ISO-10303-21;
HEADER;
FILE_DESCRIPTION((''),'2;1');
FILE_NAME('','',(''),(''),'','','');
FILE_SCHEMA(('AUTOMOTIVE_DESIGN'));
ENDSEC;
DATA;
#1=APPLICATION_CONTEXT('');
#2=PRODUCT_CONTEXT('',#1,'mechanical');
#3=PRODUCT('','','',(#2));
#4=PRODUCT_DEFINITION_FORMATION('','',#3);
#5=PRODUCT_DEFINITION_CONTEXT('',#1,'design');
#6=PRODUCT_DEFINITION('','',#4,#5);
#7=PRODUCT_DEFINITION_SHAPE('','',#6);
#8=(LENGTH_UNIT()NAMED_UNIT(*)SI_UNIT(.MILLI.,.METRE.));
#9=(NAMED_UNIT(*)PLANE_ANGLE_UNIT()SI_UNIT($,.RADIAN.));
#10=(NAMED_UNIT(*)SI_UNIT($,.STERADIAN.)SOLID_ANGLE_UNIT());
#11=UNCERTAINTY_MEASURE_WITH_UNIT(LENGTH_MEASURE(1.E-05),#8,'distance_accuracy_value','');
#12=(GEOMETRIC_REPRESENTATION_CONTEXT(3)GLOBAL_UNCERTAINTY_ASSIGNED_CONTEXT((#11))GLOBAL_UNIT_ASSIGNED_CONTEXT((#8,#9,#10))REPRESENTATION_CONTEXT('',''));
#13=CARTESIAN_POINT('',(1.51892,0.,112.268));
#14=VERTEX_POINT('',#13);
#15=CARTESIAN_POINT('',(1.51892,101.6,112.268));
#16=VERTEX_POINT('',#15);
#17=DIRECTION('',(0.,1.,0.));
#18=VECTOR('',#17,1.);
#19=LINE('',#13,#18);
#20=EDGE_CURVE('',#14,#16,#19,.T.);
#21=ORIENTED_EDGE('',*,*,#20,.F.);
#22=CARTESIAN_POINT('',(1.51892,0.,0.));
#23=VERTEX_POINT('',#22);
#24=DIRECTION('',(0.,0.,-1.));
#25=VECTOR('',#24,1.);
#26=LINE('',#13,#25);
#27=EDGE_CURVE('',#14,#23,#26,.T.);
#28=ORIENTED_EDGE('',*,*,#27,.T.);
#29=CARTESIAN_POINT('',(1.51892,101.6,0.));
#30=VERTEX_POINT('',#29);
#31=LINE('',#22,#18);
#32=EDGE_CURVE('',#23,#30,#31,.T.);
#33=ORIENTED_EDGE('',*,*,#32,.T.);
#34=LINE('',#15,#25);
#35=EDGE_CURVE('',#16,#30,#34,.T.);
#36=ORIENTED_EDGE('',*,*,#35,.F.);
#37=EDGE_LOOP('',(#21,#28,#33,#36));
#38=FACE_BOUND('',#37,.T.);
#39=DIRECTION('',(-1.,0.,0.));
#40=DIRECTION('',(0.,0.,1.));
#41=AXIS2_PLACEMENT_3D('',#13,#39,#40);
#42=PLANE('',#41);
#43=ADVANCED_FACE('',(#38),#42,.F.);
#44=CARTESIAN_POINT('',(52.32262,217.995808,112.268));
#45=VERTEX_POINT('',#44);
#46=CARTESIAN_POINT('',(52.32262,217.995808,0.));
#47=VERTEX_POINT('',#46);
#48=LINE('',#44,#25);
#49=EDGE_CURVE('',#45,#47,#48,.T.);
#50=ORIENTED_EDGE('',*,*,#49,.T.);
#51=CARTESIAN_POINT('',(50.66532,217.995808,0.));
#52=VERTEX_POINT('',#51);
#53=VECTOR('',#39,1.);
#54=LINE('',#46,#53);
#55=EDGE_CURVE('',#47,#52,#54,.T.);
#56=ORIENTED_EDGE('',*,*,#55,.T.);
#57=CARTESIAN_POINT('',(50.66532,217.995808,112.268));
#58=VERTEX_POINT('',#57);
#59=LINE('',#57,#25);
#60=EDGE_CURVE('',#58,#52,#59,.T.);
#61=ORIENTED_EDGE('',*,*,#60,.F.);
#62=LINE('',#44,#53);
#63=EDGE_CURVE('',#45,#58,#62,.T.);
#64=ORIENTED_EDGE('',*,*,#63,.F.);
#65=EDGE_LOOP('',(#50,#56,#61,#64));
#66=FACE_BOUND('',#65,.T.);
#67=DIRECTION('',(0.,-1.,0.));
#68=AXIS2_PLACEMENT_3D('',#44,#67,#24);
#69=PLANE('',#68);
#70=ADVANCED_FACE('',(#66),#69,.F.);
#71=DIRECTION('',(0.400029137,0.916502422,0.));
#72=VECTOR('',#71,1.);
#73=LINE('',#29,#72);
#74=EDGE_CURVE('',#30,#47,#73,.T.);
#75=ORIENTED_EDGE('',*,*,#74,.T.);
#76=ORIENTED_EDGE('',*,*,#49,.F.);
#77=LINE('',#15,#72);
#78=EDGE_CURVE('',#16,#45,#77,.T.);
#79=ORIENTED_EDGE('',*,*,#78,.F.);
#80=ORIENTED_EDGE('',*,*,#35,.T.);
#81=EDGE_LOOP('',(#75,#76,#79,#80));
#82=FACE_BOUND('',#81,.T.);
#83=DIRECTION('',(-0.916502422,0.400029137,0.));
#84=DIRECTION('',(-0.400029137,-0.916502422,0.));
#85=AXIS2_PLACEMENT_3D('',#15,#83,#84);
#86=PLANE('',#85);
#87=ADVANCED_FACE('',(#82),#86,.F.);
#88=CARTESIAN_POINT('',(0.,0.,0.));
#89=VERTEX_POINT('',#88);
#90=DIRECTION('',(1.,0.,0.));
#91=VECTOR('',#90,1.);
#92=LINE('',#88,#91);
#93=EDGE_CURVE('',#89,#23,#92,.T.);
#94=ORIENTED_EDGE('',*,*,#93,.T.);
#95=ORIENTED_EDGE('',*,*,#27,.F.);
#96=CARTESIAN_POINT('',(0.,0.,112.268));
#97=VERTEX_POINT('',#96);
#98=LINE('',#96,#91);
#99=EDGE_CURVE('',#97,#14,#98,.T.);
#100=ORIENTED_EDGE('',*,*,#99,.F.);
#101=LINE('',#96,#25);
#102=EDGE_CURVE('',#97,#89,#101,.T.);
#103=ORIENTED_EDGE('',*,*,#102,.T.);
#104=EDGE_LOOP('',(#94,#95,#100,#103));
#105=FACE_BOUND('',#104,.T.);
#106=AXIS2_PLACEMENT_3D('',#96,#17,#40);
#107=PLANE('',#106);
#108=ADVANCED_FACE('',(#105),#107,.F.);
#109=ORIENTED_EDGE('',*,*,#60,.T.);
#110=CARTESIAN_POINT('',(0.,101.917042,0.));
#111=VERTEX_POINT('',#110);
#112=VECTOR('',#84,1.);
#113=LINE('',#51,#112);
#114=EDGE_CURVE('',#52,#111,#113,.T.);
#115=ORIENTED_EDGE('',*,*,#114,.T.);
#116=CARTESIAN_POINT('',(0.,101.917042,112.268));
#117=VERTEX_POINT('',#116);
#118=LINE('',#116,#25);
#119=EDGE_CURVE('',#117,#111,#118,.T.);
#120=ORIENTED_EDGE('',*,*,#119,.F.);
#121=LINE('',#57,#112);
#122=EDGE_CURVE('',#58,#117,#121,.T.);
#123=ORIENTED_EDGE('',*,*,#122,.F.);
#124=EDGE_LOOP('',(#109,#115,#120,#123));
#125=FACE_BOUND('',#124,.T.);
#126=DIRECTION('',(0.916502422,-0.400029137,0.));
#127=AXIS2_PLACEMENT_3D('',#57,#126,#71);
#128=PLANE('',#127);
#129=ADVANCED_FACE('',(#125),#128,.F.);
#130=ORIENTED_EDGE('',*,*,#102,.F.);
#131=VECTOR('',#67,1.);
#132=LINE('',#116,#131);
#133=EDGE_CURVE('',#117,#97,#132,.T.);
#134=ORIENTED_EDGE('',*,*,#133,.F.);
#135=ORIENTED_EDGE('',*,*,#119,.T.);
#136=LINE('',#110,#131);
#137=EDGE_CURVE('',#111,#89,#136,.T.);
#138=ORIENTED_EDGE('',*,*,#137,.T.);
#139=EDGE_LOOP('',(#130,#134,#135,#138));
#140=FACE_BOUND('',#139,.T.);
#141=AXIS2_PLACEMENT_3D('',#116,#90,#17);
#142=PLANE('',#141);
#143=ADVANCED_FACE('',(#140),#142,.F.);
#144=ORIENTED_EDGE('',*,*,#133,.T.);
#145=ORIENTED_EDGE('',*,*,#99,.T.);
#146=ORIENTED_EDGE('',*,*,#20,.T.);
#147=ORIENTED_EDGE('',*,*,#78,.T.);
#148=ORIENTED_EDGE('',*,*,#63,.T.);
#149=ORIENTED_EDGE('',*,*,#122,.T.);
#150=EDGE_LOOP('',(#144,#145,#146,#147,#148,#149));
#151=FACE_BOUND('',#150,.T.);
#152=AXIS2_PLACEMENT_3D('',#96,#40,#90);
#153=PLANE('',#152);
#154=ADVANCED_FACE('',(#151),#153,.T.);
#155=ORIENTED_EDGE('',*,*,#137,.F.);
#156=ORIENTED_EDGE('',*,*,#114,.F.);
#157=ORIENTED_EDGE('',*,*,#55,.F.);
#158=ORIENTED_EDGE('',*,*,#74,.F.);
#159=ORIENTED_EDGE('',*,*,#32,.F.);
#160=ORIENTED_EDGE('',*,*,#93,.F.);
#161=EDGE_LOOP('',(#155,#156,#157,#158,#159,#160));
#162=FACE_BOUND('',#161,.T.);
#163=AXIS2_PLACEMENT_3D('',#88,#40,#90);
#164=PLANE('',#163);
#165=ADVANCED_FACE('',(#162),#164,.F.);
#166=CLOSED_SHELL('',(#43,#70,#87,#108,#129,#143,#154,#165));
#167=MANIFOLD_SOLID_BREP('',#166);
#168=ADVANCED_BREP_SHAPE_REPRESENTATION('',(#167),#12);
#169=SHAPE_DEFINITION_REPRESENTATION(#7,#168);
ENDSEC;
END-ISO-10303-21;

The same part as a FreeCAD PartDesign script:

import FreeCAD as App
import Part
import Sketcher

V = App.Vector
Q = App.Units.Quantity


def add_polygon(sketch, points):
    """Adds a closed chain of lines whose ends are joined by coincident constraints."""
    first, n = sketch.GeometryCount, len(points)
    for a, b in zip(points, points[1:] + points[:1]):
        sketch.addGeometry(Part.LineSegment(App.Vector(*a, 0), App.Vector(*b, 0)), False)
    for i in range(n):
        sketch.addConstraint(Sketcher.Constraint("Coincident", first + i, 2, first + (i + 1) % n, 1))

doc = App.newDocument("Part")
body = doc.addObject("PartDesign::Body", "Body")

# Sketch on XY plane
sketch1 = doc.addObject("Sketcher::SketchObject", "Sketch")
body.addObject(sketch1)
sketch1.AttachmentSupport = (doc.XY_Plane, [""])
sketch1.MapMode = "FlatFace"
add_polygon(sketch1, [(0, 0), (1.5, 0), (1.5, 101.6), (52.3, 218), (50.7, 218), (0, 101.9)])  # lines 0-5
sketch1.addConstraint([
    Sketcher.Constraint("Horizontal", 0),
    Sketcher.Constraint("Vertical", 1),
    Sketcher.Constraint("Horizontal", 3),
    Sketcher.Constraint("Vertical", 5),
    Sketcher.Constraint("Coincident", 5, 2, -1, 1),
    Sketcher.Constraint("Parallel", 2, 4),
    Sketcher.Constraint("DistanceY", 1, 1, 1, 2, Q("4 in")),
    Sketcher.Constraint("Distance", 2, Q("5 in")),
    Sketcher.Constraint("Angle", 2, Q("66.42 deg")),
    Sketcher.Constraint("DistanceX", 0, 1, 0, 2, Q("0.0598 in")),
    Sketcher.Constraint("DistanceX", 3, 2, 3, 1, Q("1.657301 mm")),
])
pad1 = doc.addObject("PartDesign::Pad", "Pad")
body.addObject(pad1)
pad1.Profile = sketch1
pad1.Length = Q("4.42 in")

doc.recompute()
